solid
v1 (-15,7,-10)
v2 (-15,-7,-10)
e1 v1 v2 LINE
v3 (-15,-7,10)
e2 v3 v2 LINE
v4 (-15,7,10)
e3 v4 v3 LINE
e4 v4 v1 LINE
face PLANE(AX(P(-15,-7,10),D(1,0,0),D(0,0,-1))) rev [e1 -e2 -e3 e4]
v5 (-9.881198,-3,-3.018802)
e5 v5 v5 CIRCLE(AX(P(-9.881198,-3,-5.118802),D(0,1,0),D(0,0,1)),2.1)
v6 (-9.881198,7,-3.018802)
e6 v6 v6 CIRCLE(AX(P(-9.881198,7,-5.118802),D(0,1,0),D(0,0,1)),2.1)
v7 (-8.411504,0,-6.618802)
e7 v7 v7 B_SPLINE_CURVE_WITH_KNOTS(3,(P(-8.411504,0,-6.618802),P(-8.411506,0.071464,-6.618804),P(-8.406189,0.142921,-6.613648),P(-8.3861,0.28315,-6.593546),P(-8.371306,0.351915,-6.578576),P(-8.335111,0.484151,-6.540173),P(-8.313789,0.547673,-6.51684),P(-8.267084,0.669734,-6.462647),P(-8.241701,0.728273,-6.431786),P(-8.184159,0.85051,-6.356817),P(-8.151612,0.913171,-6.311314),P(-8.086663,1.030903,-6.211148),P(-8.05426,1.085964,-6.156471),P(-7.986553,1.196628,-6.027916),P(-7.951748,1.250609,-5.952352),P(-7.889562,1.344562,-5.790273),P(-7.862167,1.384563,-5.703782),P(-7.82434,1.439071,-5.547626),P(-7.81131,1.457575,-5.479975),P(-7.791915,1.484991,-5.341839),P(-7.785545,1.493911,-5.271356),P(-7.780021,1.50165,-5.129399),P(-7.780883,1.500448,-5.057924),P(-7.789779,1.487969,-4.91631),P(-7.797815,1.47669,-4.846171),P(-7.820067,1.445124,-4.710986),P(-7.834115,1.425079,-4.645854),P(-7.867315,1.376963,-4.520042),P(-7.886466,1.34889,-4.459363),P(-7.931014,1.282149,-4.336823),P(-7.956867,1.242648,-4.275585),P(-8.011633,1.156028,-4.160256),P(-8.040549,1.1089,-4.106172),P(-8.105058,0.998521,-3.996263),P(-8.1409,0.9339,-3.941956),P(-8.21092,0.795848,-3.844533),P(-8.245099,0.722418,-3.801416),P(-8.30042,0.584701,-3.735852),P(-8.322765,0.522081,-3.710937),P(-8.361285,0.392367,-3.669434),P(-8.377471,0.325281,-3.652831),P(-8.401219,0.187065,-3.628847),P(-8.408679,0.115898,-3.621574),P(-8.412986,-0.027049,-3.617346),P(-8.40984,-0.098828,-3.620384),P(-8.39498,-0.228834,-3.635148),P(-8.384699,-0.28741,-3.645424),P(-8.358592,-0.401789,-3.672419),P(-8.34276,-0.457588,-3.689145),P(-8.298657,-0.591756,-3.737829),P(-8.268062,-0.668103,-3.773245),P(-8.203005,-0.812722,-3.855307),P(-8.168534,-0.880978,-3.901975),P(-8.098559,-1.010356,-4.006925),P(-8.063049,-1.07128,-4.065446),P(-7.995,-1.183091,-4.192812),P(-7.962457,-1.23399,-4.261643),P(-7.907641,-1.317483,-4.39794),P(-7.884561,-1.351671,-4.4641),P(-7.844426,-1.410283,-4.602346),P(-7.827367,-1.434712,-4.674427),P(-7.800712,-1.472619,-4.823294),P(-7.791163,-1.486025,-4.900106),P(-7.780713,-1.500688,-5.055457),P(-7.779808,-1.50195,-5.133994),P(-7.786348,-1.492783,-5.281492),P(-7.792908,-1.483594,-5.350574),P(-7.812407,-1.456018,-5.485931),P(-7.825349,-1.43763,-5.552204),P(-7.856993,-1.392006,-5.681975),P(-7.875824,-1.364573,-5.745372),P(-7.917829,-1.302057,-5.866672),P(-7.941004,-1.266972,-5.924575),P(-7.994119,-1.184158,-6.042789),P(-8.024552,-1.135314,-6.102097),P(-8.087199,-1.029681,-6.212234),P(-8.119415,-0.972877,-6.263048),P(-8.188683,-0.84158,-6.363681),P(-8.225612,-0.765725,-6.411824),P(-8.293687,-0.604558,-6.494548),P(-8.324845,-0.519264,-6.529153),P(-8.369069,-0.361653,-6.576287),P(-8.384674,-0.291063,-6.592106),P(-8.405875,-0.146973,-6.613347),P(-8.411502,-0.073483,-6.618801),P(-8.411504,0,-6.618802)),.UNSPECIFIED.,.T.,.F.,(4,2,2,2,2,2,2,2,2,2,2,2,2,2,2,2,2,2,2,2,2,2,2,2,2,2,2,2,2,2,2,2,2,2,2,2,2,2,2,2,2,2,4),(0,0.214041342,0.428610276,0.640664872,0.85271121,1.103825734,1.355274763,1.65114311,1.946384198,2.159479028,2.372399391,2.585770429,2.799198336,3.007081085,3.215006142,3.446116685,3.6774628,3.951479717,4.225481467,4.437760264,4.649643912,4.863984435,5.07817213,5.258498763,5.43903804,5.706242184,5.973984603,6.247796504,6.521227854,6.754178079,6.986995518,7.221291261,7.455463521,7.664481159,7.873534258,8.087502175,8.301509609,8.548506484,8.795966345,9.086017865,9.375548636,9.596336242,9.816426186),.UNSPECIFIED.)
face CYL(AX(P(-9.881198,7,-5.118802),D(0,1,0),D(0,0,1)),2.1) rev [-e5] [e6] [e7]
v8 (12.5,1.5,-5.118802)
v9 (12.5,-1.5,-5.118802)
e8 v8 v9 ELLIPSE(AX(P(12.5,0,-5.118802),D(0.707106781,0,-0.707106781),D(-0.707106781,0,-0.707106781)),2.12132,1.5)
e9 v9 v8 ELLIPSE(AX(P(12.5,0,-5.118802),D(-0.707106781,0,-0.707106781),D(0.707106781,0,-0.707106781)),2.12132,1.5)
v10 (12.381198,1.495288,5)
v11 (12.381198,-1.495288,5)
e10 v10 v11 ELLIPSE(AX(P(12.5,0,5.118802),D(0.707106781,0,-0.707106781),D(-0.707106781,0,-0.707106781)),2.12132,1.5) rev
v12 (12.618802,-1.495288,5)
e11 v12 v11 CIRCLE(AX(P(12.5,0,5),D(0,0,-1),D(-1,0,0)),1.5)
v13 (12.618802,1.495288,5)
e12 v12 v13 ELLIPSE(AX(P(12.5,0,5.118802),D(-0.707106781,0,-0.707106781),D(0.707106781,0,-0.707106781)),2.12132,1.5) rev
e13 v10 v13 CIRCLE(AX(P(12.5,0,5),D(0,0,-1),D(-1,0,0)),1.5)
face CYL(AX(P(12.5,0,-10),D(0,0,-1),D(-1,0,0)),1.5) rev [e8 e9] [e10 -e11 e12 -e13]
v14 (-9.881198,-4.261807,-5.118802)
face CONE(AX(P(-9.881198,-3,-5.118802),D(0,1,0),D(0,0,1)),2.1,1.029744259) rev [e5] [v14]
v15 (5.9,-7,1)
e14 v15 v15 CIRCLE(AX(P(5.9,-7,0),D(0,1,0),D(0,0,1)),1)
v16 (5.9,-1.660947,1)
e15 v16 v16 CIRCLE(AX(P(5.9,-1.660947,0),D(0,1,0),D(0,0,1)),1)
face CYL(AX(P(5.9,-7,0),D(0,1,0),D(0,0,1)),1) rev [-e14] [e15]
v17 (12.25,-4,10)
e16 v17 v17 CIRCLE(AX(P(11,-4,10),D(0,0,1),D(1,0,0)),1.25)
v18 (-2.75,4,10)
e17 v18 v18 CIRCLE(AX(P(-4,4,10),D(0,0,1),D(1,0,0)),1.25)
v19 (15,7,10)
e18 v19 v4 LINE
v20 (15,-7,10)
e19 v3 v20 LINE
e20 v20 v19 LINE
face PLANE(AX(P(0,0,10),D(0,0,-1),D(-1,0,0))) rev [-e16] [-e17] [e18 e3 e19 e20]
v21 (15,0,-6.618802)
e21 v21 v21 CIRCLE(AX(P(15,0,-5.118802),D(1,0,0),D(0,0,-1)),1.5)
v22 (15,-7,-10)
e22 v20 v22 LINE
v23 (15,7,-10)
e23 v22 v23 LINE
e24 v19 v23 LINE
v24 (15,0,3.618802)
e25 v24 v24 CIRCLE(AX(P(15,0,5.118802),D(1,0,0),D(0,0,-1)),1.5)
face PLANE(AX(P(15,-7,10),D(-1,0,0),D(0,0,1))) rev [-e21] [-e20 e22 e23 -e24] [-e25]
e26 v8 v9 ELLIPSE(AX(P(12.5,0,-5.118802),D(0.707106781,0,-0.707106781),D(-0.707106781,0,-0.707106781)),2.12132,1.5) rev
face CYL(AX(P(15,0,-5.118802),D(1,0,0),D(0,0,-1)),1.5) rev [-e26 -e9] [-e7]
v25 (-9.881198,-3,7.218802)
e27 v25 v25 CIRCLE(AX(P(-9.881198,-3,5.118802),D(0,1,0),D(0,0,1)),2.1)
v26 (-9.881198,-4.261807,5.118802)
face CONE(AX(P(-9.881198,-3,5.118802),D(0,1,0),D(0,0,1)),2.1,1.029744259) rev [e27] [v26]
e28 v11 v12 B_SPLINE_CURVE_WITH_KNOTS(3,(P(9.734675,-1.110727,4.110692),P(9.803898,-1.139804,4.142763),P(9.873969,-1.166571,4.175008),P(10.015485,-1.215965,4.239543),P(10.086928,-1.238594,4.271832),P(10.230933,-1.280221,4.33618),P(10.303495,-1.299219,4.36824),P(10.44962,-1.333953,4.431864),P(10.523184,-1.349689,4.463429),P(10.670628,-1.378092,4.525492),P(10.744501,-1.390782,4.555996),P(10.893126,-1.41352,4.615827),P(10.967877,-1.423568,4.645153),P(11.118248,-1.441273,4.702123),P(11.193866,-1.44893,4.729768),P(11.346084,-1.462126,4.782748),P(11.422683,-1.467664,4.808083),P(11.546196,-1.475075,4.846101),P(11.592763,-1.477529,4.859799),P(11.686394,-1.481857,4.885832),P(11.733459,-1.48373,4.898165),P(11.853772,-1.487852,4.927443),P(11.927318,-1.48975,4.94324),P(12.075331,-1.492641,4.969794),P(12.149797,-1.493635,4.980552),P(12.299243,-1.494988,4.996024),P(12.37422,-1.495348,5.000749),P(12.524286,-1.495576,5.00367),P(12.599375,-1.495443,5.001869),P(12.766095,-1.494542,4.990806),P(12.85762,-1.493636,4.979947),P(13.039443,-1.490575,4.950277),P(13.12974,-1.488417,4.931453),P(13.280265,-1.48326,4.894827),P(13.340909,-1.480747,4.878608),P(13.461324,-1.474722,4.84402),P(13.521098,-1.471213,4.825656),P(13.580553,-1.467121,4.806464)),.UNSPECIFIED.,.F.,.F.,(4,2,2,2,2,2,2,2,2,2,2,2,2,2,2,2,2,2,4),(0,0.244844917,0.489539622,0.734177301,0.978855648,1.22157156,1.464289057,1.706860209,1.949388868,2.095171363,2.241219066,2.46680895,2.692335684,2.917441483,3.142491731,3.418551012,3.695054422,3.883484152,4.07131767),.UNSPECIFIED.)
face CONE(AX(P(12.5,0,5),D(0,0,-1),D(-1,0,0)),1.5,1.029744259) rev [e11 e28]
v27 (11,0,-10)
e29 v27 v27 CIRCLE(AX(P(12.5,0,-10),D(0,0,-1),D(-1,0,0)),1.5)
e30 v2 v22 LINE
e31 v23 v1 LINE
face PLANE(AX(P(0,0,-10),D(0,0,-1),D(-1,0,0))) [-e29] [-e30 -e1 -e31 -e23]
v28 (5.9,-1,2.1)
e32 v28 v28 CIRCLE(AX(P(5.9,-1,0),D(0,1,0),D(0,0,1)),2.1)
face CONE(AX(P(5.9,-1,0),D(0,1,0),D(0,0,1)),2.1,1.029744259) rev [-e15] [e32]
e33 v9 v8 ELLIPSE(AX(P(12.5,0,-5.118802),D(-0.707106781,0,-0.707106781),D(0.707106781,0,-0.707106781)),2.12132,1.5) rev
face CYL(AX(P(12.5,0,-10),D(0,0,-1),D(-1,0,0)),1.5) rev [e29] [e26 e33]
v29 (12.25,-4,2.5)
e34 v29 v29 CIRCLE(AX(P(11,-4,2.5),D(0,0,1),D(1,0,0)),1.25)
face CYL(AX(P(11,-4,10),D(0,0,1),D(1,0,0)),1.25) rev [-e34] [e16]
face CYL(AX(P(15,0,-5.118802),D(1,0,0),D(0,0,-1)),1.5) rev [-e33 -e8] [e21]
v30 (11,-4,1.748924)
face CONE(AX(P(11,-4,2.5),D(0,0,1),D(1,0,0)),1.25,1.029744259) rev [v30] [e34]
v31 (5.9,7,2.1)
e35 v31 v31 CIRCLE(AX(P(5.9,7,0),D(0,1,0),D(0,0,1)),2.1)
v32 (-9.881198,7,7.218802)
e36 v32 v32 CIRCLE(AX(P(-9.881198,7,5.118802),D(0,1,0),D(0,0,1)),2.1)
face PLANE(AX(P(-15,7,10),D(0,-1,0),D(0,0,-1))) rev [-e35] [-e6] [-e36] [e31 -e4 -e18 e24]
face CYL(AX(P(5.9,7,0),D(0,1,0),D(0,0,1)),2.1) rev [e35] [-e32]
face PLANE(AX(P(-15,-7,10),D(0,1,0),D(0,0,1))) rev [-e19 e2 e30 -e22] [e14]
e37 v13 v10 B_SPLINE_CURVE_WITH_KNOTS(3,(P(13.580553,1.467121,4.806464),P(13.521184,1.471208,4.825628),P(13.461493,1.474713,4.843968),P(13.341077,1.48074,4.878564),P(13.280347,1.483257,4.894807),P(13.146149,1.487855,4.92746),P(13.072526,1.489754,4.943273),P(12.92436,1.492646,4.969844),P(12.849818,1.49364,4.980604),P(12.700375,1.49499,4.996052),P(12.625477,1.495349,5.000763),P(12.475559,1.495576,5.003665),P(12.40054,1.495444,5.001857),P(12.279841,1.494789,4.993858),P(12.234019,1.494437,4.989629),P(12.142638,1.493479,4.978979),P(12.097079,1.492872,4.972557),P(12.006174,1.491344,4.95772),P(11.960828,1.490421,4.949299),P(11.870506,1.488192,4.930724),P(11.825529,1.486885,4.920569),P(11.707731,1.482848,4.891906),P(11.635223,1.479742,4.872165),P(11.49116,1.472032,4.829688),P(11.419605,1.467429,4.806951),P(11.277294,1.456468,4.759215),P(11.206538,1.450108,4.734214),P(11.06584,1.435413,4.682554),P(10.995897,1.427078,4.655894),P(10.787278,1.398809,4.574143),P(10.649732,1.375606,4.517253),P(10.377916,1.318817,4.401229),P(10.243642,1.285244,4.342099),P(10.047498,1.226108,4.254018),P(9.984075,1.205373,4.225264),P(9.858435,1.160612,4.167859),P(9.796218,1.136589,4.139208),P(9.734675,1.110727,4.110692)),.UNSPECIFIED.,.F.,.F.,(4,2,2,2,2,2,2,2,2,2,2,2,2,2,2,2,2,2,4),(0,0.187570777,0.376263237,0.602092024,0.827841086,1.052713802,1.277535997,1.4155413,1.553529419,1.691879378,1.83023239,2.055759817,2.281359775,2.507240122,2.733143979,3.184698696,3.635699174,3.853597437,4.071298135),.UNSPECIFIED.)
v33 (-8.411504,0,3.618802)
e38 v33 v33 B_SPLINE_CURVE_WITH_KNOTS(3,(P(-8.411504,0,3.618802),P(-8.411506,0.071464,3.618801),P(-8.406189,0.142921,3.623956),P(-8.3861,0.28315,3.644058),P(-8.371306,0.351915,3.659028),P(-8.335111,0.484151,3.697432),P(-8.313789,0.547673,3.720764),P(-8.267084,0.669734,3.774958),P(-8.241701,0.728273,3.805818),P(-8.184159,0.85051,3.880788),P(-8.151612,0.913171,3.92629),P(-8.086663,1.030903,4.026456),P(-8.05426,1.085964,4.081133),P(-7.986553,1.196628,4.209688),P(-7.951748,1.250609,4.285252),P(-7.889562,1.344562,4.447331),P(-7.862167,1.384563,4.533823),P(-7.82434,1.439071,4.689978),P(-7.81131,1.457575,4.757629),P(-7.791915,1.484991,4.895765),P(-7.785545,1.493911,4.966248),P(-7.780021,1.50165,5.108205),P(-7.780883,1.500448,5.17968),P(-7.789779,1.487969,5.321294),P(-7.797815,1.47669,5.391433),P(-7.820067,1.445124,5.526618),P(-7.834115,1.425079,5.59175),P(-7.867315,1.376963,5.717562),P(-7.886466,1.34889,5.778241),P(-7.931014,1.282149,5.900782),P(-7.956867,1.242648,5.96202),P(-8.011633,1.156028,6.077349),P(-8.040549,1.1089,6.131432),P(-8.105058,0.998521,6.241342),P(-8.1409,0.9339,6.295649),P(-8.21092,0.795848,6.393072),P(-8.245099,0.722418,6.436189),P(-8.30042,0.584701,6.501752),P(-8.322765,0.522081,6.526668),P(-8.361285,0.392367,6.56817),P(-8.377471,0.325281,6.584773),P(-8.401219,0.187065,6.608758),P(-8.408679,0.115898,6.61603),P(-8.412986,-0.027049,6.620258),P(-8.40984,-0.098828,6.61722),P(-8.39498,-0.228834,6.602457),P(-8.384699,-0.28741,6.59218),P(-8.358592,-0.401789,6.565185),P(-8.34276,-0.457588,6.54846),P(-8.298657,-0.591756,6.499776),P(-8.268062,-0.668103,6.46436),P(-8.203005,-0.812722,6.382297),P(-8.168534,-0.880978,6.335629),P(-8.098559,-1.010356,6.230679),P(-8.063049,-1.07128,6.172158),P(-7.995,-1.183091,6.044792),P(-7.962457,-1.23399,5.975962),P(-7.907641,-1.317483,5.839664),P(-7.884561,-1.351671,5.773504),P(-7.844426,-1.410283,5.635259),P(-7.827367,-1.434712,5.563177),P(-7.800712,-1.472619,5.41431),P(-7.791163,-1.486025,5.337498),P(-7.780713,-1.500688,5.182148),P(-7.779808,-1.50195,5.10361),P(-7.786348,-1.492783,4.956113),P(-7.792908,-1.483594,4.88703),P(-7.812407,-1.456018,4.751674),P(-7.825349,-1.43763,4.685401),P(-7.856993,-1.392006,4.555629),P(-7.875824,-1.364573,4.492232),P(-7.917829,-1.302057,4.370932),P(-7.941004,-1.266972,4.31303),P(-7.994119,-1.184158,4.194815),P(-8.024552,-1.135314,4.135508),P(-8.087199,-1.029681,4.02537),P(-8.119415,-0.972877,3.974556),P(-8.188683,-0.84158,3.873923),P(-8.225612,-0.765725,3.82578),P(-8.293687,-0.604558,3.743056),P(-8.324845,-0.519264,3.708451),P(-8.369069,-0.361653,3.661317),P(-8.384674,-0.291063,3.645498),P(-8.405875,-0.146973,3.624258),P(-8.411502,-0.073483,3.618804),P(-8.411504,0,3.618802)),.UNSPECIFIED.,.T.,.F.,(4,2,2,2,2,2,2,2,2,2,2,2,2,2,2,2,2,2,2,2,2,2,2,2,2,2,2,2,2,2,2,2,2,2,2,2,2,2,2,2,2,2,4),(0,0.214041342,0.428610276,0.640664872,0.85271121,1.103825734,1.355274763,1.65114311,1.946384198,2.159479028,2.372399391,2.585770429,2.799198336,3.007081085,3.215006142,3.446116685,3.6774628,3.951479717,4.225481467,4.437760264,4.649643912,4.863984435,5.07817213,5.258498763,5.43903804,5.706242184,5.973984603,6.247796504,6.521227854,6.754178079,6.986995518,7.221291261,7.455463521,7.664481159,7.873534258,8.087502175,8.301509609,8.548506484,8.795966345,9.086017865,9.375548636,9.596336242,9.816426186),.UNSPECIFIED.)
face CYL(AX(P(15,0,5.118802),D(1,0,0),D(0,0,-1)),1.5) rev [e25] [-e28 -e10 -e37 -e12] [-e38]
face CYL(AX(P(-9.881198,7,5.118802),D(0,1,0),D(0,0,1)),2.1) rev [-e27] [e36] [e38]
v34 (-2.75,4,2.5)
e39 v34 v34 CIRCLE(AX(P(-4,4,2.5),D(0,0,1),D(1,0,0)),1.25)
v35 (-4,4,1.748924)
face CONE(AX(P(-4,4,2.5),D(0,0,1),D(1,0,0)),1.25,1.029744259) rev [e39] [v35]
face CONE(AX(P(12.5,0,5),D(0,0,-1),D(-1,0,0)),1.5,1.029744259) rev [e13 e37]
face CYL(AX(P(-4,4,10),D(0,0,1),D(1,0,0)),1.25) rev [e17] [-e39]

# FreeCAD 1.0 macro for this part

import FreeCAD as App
import Part
import Sketcher

V = App.Vector
Q = App.Units.Quantity

doc = App.newDocument("Part")
body = doc.addObject("PartDesign::Body", "Body")

# Sketch on XY plane
sketch1 = body.newObject("Sketcher::SketchObject", "Sketch")
sketch1.AttachmentSupport = (doc.getObject("XY_Plane"), [""])
sketch1.MapMode = "FlatFace"
sketch1.addGeometry([
    Part.LineSegment(V(-15, 7, 0), V(-15, -7, 0)),
    Part.LineSegment(V(-15, -7, 0), V(15, -7, 0)),
    Part.LineSegment(V(15, -7, 0), V(15, 7, 0)),
    Part.LineSegment(V(15, 7, 0), V(-15, 7, 0)),
], False)
sketch1.addConstraint([
    Sketcher.Constraint("Coincident", 0, 2, 1, 1),
    Sketcher.Constraint("Coincident", 1, 2, 2, 1),
    Sketcher.Constraint("Coincident", 2, 2, 3, 1),
    Sketcher.Constraint("Coincident", 3, 2, 0, 1),
    Sketcher.Constraint("Vertical", 0),
    Sketcher.Constraint("Horizontal", 1),
    Sketcher.Constraint("Vertical", 2),
    Sketcher.Constraint("Horizontal", 3),
    Sketcher.Constraint("Symmetric", 0, 2, 2, 2, -1, 1),
    Sketcher.Constraint("DistanceX", 1, 1, 1, 2, 30.0),
    Sketcher.Constraint("DistanceY", 0, 2, 0, 1, 14.0),
])
pad1 = body.newObject("PartDesign::Pad", "Pad")
pad1.Profile = sketch1
pad1.Length = 20
pad1.Midplane = True

# Sketch on XZ plane
sketch2 = body.newObject("Sketcher::SketchObject", "Sketch001")
sketch2.AttachmentSupport = (doc.getObject("XZ_Plane"), [""])
sketch2.MapMode = "FlatFace"
sketch2.AttachmentOffset = App.Placement(V(0, 0, -7), App.Rotation())
sketch2.addGeometry(Part.Circle(V(5.9, 0, 0), V(0, 0, 1), 1), False)
sketch2.addConstraint([
    Sketcher.Constraint("PointOnObject", 0, 3, -1),
    Sketcher.Constraint("Diameter", 0, 2.0),
    Sketcher.Constraint("DistanceX", -1, 1, 0, 3, 5.9),
])
pocket1 = body.newObject("PartDesign::Pocket", "Pocket")
pocket1.Profile = sketch2
pocket1.Type = "ThroughAll"
pocket1.Reversed = True

# Sketch on XZ plane
sketch3 = body.newObject("Sketcher::SketchObject", "Sketch002")
sketch3.AttachmentSupport = (doc.getObject("XZ_Plane"), [""])
sketch3.MapMode = "FlatFace"
sketch3.AttachmentOffset = App.Placement(V(0, 0, -7), App.Rotation())
sketch3.addGeometry(Part.Circle(V(5.9, 0, 0), V(0, 0, 1), 2.1), False)
sketch3.addConstraint([
    Sketcher.Constraint("PointOnObject", 0, 3, -1),
    Sketcher.Constraint("Diameter", 0, 4.2),
    Sketcher.Constraint("DistanceX", -1, 1, 0, 3, 5.9),
])
doc.recompute()
hole = body.newObject("PartDesign::Hole", "Hole")
hole.Profile = sketch3
hole.ThreadType = "None"
hole.Diameter = 4.2
hole.DepthType = "Dimension"
hole.Depth = 8
hole.DrillPoint = "Angled"
hole.DrillPointAngle = 118
hole.Reversed = True

# Sketch on YZ plane
sketch4 = body.newObject("Sketcher::SketchObject", "Sketch003")
sketch4.AttachmentSupport = (doc.getObject("YZ_Plane"), [""])
sketch4.MapMode = "FlatFace"
sketch4.AttachmentOffset = App.Placement(V(0, 0, -9.881198), App.Rotation())
sketch4.addGeometry([
    Part.LineSegment(V(-4.3, -5.1, 0), V(7, -5.1, 0)),
    Part.LineSegment(V(7, -5.1, 0), V(7, -3, 0)),
    Part.LineSegment(V(7, -3, 0), V(-3, -3, 0)),
    Part.LineSegment(V(-3, -3, 0), V(-4.3, -5.1, 0)),
], False)
sketch4.addGeometry(Part.LineSegment(V(7, -5.1, 0), V(-4.3, -5.1, 0)), True)  # axis
sketch4.addConstraint([
    Sketcher.Constraint("Coincident", 0, 2, 1, 1),
    Sketcher.Constraint("Coincident", 1, 2, 2, 1),
    Sketcher.Constraint("Coincident", 2, 2, 3, 1),
    Sketcher.Constraint("Coincident", 3, 2, 0, 1),
    Sketcher.Constraint("Horizontal", 0),
    Sketcher.Constraint("Vertical", 1),
    Sketcher.Constraint("Horizontal", 2),
    Sketcher.Constraint("Horizontal", 4),
    Sketcher.Constraint("Coincident", 4, 1, 0, 2),
    Sketcher.Constraint("Equal", 0, 4),
    Sketcher.Constraint("DistanceX", 2, 2, 2, 1, 10.0),
    Sketcher.Constraint("Angle", 3, Q("-121 deg")),
    Sketcher.Constraint("DistanceY", 1, 1, 1, 2, 2.1),
    Sketcher.Constraint("DistanceX", -1, 1, 0, 2, 7.0),
    Sketcher.Constraint("DistanceY", 0, 2, -1, 1, 5.118802),
])
groove = body.newObject("PartDesign::Groove", "Groove")
groove.Profile = sketch4
groove.ReferenceAxis = (sketch4, ["Axis0"])
groove.Angle = 360
doc.recompute()

mirrored = body.newObject("PartDesign::Mirrored", "Mirrored")
mirrored.Originals = [groove]
mirrored.MirrorPlane = (doc.getObject("XY_Plane"), [""])
body.Tip = mirrored

# Sketch on XY plane
sketch5 = body.newObject("Sketcher::SketchObject", "Sketch004")
sketch5.AttachmentSupport = (doc.getObject("XY_Plane"), [""])
sketch5.MapMode = "FlatFace"
sketch5.AttachmentOffset = App.Placement(V(0, 0, -10), App.Rotation())
sketch5.addGeometry(Part.Circle(V(12.5, 0, 0), V(0, 0, 1), 1.5), False)
sketch5.addConstraint([
    Sketcher.Constraint("PointOnObject", 0, 3, -1),
    Sketcher.Constraint("Diameter", 0, 3.0),
    Sketcher.Constraint("DistanceX", -1, 1, 0, 3, 12.5),
])
doc.recompute()
hole2 = body.newObject("PartDesign::Hole", "Hole001")
hole2.Profile = sketch5
hole2.ThreadType = "None"
hole2.Diameter = 3
hole2.DepthType = "Dimension"
hole2.Depth = 15
hole2.DrillPoint = "Angled"
hole2.DrillPointAngle = 118
hole2.Reversed = True

# Sketch on YZ plane
sketch6 = body.newObject("Sketcher::SketchObject", "Sketch005")
sketch6.AttachmentSupport = (doc.getObject("YZ_Plane"), [""])
sketch6.MapMode = "FlatFace"
sketch6.AttachmentOffset = App.Placement(V(0, 0, 15), App.Rotation())
sketch6.addGeometry([
    Part.Circle(V(0, 5.1, 0), V(0, 0, 1), 1.5),
    Part.Circle(V(0, -5.1, 0), V(0, 0, 1), 1.5),
], False)
sketch6.addConstraint([
    Sketcher.Constraint("Equal", 0, 1),
    Sketcher.Constraint("Symmetric", 0, 3, 1, 3, -1, 1),
    Sketcher.Constraint("PointOnObject", 0, 3, -2),
    Sketcher.Constraint("Diameter", 0, 3.0),
    Sketcher.Constraint("DistanceY", -1, 1, 0, 3, 5.118802),
])
doc.recompute()
hole3 = body.newObject("PartDesign::Hole", "Hole002")
hole3.Profile = sketch6
hole3.ThreadType = "None"
hole3.Diameter = 3
hole3.DepthType = "Dimension"
hole3.Depth = 25
hole3.DrillPoint = "Angled"
hole3.DrillPointAngle = 118

# Sketch on XY plane
sketch7 = body.newObject("Sketcher::SketchObject", "Sketch006")
sketch7.AttachmentSupport = (doc.getObject("XY_Plane"), [""])
sketch7.MapMode = "FlatFace"
sketch7.AttachmentOffset = App.Placement(V(0, 0, 10), App.Rotation())
sketch7.addGeometry([
    Part.Circle(V(-4, 4, 0), V(0, 0, 1), 1.2),
    Part.Circle(V(11, -4, 0), V(0, 0, 1), 1.2),
], False)
sketch7.addConstraint([
    Sketcher.Constraint("Equal", 0, 1),
    Sketcher.Constraint("Diameter", 0, 2.5),
    Sketcher.Constraint("DistanceX", 0, 3, -1, 1, 4.0),
    Sketcher.Constraint("DistanceY", -1, 1, 0, 3, 4.0),
    Sketcher.Constraint("DistanceX", -1, 1, 1, 3, 11.0),
    Sketcher.Constraint("DistanceY", 1, 3, -1, 1, 4.0),
])
doc.recompute()
hole4 = body.newObject("PartDesign::Hole", "Hole003")
hole4.Profile = sketch7
hole4.ThreadType = "None"
hole4.Diameter = 2.5
hole4.DepthType = "Dimension"
hole4.Depth = 7.5
hole4.DrillPoint = "Angled"
hole4.DrillPointAngle = 118

doc.recompute()
